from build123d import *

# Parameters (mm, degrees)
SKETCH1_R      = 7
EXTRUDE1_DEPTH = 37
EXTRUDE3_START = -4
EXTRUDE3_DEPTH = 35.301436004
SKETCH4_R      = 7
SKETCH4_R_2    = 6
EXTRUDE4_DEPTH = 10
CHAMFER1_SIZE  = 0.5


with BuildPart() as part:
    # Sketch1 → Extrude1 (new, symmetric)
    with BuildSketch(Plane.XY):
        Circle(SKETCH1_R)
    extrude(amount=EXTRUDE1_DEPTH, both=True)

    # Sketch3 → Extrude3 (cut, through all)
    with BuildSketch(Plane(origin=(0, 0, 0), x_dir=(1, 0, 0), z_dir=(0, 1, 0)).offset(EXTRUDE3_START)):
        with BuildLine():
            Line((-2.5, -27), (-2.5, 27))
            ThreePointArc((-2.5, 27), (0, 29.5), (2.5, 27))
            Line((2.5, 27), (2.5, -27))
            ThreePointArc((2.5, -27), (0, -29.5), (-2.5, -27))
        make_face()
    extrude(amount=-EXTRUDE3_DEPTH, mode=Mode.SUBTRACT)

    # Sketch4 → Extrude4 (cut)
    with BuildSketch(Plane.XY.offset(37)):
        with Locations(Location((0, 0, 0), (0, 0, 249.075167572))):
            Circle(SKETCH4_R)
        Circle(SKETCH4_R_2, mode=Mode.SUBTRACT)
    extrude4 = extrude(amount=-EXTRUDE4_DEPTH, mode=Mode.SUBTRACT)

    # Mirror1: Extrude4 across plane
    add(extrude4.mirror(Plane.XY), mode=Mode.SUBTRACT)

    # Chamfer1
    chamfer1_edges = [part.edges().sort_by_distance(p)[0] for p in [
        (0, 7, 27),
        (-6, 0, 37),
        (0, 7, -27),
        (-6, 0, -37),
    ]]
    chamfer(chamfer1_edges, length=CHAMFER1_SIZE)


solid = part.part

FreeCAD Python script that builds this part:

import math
import FreeCAD as App
import Part
import Sketcher
from FreeCAD import Vector


def edges_at(feature, points):
    """Names of the edges that pass closest to the given points."""
    edges = feature.Shape.Edges
    near = lambda p: min(range(len(edges)), key=lambda i: edges[i].distToShape(Part.Vertex(*p))[0])
    return sorted({f"Edge{near(p) + 1}" for p in points})

doc = App.newDocument("Part")
body = doc.addObject("PartDesign::Body", "Body")

# Sketch on XY plane
sketch1 = body.newObject("Sketcher::SketchObject", "Sketch")
sketch1.AttachmentSupport = (doc.getObject("XY_Plane"), [""])
sketch1.MapMode = "FlatFace"
sketch1.addGeometry(Part.Circle(Vector(0, 0, 0), Vector(0, 0, 1), 7), False)
sketch1.addConstraint(Sketcher.Constraint("Coincident", 0, 3, -1, 1))
sketch1.addConstraint(Sketcher.Constraint("Diameter", 0, 14.0))
pad1 = body.newObject("PartDesign::Pad", "Pad")
pad1.Profile = sketch1
pad1.Length = 74
pad1.Midplane = True

# Sketch on XZ plane
sketch2 = body.newObject("Sketcher::SketchObject", "Sketch001")
sketch2.AttachmentSupport = (doc.getObject("XZ_Plane"), [""])
sketch2.MapMode = "FlatFace"
sketch2.AttachmentOffset = App.Placement(Vector(0, 0, 4), App.Rotation())
sketch2.addGeometry(Part.LineSegment(Vector(-2.5, -27, 0), Vector(-2.5, 27, 0)), False)
sketch2.addGeometry(Part.ArcOfCircle(Part.Circle(Vector(0, 27, 0), Vector(0, 0, 1), 2.5), math.radians(0), math.radians(180)), False)
sketch2.addGeometry(Part.LineSegment(Vector(2.5, 27, 0), Vector(2.5, -27, 0)), False)
sketch2.addGeometry(Part.ArcOfCircle(Part.Circle(Vector(0, -27, 0), Vector(0, 0, 1), 2.5), math.radians(180), math.radians(360)), False)
sketch2.addConstraint(Sketcher.Constraint("Tangent", 0, 2, 1, 2))
sketch2.addConstraint(Sketcher.Constraint("Tangent", 1, 1, 2, 1))
sketch2.addConstraint(Sketcher.Constraint("Tangent", 2, 2, 3, 2))
sketch2.addConstraint(Sketcher.Constraint("Tangent", 3, 1, 0, 1))
sketch2.addConstraint(Sketcher.Constraint("Vertical", 0))
sketch2.addConstraint(Sketcher.Constraint("Vertical", 2))
sketch2.addConstraint(Sketcher.Constraint("Symmetric", 1, 3, 3, 3, -1, 1))
sketch2.addConstraint(Sketcher.Constraint("Radius", 1, 2.5))
sketch2.addConstraint(Sketcher.Constraint("DistanceY", 0, 1, 0, 2, 54.0))
pocket1 = body.newObject("PartDesign::Pocket", "Pocket")
pocket1.Profile = sketch2
pocket1.Type = "ThroughAll"
pocket1.Reversed = True

# Sketch on XY plane
sketch3 = body.newObject("Sketcher::SketchObject", "Sketch002")
sketch3.AttachmentSupport = (doc.getObject("XY_Plane"), [""])
sketch3.MapMode = "FlatFace"
sketch3.AttachmentOffset = App.Placement(Vector(0, 0, 37), App.Rotation())
sketch3.addGeometry(Part.Circle(Vector(0, 0, 0), Vector(0, 0, 1), 7), False)
sketch3.addGeometry(Part.Circle(Vector(0, 0, 0), Vector(0, 0, 1), 6), False)
sketch3.addConstraint(Sketcher.Constraint("Coincident", 0, 3, -1, 1))
sketch3.addConstraint(Sketcher.Constraint("Coincident", 1, 3, -1, 1))
sketch3.addConstraint(Sketcher.Constraint("Diameter", 0, 14.0))
sketch3.addConstraint(Sketcher.Constraint("Diameter", 1, 12.0))
pocket2 = body.newObject("PartDesign::Pocket", "Pocket001")
pocket2.Profile = sketch3
pocket2.Length = 10
doc.recompute()

mirrored = body.newObject("PartDesign::Mirrored", "Mirrored")
mirrored.Originals = [pocket2]
mirrored.MirrorPlane = (doc.getObject("XY_Plane"), [""])
body.Tip = mirrored
doc.recompute()

chamfer = body.newObject("PartDesign::Chamfer", "Chamfer")
chamfer.Base = (mirrored, edges_at(mirrored, [
    (0, 7, 27),
    (-6, 0, 37),
    (0, 7, -27),
    (-6, 0, -37),
]))
chamfer.Size = 0.5

doc.recompute()
